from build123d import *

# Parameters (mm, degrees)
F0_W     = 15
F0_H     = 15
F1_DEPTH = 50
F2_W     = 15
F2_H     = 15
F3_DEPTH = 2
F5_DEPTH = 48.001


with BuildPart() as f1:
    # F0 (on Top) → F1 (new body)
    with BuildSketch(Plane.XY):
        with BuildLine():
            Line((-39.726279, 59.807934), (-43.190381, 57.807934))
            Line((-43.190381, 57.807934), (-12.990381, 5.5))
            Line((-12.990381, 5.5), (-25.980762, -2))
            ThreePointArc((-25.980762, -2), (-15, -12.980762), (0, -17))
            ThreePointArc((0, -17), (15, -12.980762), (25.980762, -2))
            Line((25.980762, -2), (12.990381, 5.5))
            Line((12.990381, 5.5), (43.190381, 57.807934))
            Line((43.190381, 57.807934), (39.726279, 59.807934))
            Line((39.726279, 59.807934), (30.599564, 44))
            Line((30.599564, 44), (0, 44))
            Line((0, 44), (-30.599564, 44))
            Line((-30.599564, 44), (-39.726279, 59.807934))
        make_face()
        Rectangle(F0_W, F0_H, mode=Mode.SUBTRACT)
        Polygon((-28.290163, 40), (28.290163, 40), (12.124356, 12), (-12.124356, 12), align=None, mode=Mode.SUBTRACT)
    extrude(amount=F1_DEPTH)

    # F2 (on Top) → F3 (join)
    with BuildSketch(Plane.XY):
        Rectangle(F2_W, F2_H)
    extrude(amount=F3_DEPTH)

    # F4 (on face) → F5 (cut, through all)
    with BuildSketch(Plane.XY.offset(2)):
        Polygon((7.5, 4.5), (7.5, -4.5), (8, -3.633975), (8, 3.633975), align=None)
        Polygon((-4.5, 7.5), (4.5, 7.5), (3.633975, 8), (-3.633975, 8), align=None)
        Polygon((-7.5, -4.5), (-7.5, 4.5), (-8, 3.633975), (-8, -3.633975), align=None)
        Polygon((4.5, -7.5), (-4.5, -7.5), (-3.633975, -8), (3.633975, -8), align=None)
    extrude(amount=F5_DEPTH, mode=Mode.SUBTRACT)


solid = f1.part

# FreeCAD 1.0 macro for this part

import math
import FreeCAD as App
import Part
import Sketcher

V = App.Vector
Q = App.Units.Quantity

doc = App.newDocument("Part")
params = doc.addObject("Spreadsheet::Sheet", "Params")
for row, (alias, value) in enumerate([
    ("sketch1_radius", "30 mm"),
    ("sketch1_width", "15 mm"),
    ("sketch1_length", "4 mm"),
    ("sketch1_length2", "15 mm"),
    ("sketch1_length3", "60.4 mm"),
    ("pad1_length", "50 mm"),
    ("sketch2_width", "15 mm"),
    ("pad2_length", "2 mm"),
    ("sketch3_width", "9 mm"),
    ("sketch3_length", "1 mm"),
], start=1):
    params.set(f"A{row}", alias)
    params.set(f"B{row}", "=" + value)
    params.setAlias(f"B{row}", alias)

body = doc.addObject("PartDesign::Body", "Body")

# Sketch on XY plane
sketch1 = doc.addObject("Sketcher::SketchObject", "Sketch")
body.addObject(sketch1)
sketch1.AttachmentSupport = (doc.XY_Plane, [""])
sketch1.MapMode = "FlatFace"
sketch1.addGeometry(Part.LineSegment(V(-39.726279, 59.807934, 0), V(-43.190381, 57.807934, 0)), False)
sketch1.addGeometry(Part.LineSegment(V(-43.190381, 57.807934, 0), V(-12.990381, 5.5, 0)), False)
sketch1.addGeometry(Part.LineSegment(V(-12.990381, 5.5, 0), V(-25.980762, -2, 0)), False)
sketch1.addGeometry(Part.ArcOfCircle(Part.Circle(V(0, 13, 0), V(0, 0, 1), 30), math.radians(-150), math.radians(-90.000001)), False)
sketch1.addGeometry(Part.ArcOfCircle(Part.Circle(V(0, 13, 0), V(0, 0, 1), 30), math.radians(-89.999999), math.radians(-30)), False)
sketch1.addGeometry(Part.LineSegment(V(25.980762, -2, 0), V(12.990381, 5.5, 0)), False)
sketch1.addGeometry(Part.LineSegment(V(12.990381, 5.5, 0), V(43.190381, 57.807934, 0)), False)
sketch1.addGeometry(Part.LineSegment(V(43.190381, 57.807934, 0), V(39.726279, 59.807934, 0)), False)
sketch1.addGeometry(Part.LineSegment(V(39.726279, 59.807934, 0), V(30.599564, 44, 0)), False)
sketch1.addGeometry(Part.LineSegment(V(30.599564, 44, 0), V(-30.599564, 44, 0)), False)
sketch1.addGeometry(Part.LineSegment(V(-30.599564, 44, 0), V(-39.726279, 59.807934, 0)), False)
sketch1.addGeometry(Part.LineSegment(V(7.5, -7.5, 0), V(-7.5, -7.5, 0)), False)
sketch1.addGeometry(Part.LineSegment(V(-7.5, -7.5, 0), V(-7.5, 7.5, 0)), False)
sketch1.addGeometry(Part.LineSegment(V(-7.5, 7.5, 0), V(7.5, 7.5, 0)), False)
sketch1.addGeometry(Part.LineSegment(V(7.5, 7.5, 0), V(7.5, -7.5, 0)), False)
sketch1.addGeometry(Part.LineSegment(V(-12.124356, 12, 0), V(-28.290163, 40, 0)), False)
sketch1.addGeometry(Part.LineSegment(V(-28.290163, 40, 0), V(28.290163, 40, 0)), False)
sketch1.addGeometry(Part.LineSegment(V(28.290163, 40, 0), V(12.124356, 12, 0)), False)
sketch1.addGeometry(Part.LineSegment(V(12.124356, 12, 0), V(-12.124356, 12, 0)), False)
sketch1.addConstraint(Sketcher.Constraint("Coincident", 0, 2, 1, 1))
sketch1.addConstraint(Sketcher.Constraint("Coincident", 1, 2, 2, 1))
sketch1.addConstraint(Sketcher.Constraint("Coincident", 2, 2, 3, 1))
sketch1.addConstraint(Sketcher.Constraint("Tangent", 3, 2, 4, 1))
sketch1.addConstraint(Sketcher.Constraint("Coincident", 4, 2, 5, 1))
sketch1.addConstraint(Sketcher.Constraint("Coincident", 5, 2, 6, 1))
sketch1.addConstraint(Sketcher.Constraint("Coincident", 6, 2, 7, 1))
sketch1.addConstraint(Sketcher.Constraint("Coincident", 7, 2, 8, 1))
sketch1.addConstraint(Sketcher.Constraint("Coincident", 8, 2, 9, 1))
sketch1.addConstraint(Sketcher.Constraint("Coincident", 9, 2, 10, 1))
sketch1.addConstraint(Sketcher.Constraint("Coincident", 10, 2, 0, 1))
sketch1.addConstraint(Sketcher.Constraint("Coincident", 11, 2, 12, 1))
sketch1.addConstraint(Sketcher.Constraint("Coincident", 12, 2, 13, 1))
sketch1.addConstraint(Sketcher.Constraint("Coincident", 13, 2, 14, 1))
sketch1.addConstraint(Sketcher.Constraint("Coincident", 14, 2, 11, 1))
sketch1.addConstraint(Sketcher.Constraint("Coincident", 15, 2, 16, 1))
sketch1.addConstraint(Sketcher.Constraint("Coincident", 16, 2, 17, 1))
sketch1.addConstraint(Sketcher.Constraint("Coincident", 17, 2, 18, 1))
sketch1.addConstraint(Sketcher.Constraint("Coincident", 18, 2, 15, 1))
sketch1.addConstraint(Sketcher.Constraint("Horizontal", 9))
sketch1.addConstraint(Sketcher.Constraint("Horizontal", 11))
sketch1.addConstraint(Sketcher.Constraint("Vertical", 12))
sketch1.addConstraint(Sketcher.Constraint("Horizontal", 13))
sketch1.addConstraint(Sketcher.Constraint("Vertical", 14))
sketch1.addConstraint(Sketcher.Constraint("Horizontal", 16))
sketch1.addConstraint(Sketcher.Constraint("Horizontal", 18))
sketch1.addConstraint(Sketcher.Constraint("Equal", 3, 4))
sketch1.addConstraint(Sketcher.Constraint("Symmetric", 11, 2, 13, 2, -1, 1))
sketch1.addConstraint(Sketcher.Constraint("Symmetric", 2, 2, 4, 2, -2))
sketch1.addConstraint(Sketcher.Constraint("Symmetric", 1, 2, 5, 2, -2))
sketch1.addConstraint(Sketcher.Constraint("Symmetric", 0, 2, 6, 2, -2))
sketch1.addConstraint(Sketcher.Constraint("Symmetric", 7, 2, 10, 2, -2))
sketch1.addConstraint(Sketcher.Constraint("PointOnObject", 3, 2, -2))
sketch1.addConstraint(Sketcher.Constraint("Perpendicular", 0, 1))
sketch1.addConstraint(Sketcher.Constraint("Perpendicular", 1, 2))
sketch1.addConstraint(Sketcher.Constraint("Perpendicular", 7, 8))
sketch1.addConstraint(Sketcher.Constraint("Perpendicular", 2, 10))
sketch1.addConstraint(Sketcher.Constraint("Parallel", 10, 15))
sketch1.addConstraint(Sketcher.Constraint("Parallel", 8, 17))
sketch1.addConstraint(Sketcher.Constraint("Equal", 13, 12))
sketch1.addConstraint(Sketcher.Constraint("Radius", 3, Q("30 mm")))
sketch1.addConstraint(Sketcher.Constraint("DistanceX", 11, 2, 11, 1, Q("15 mm")))
sketch1.addConstraint(Sketcher.Constraint("Angle", 0, Q("-150.000003 deg")))
sketch1.addConstraint(Sketcher.Constraint("Distance", 0, Q("4 mm")))
sketch1.addConstraint(Sketcher.Constraint("Distance", 2, Q("15 mm")))
sketch1.addConstraint(Sketcher.Constraint("DistanceY", -1, 1, 3, 3, Q("13 mm")))
sketch1.addConstraint(Sketcher.Constraint("DistanceY", 2, 2, -1, 1, Q("2 mm")))
sketch1.addConstraint(Sketcher.Constraint("DistanceY", -1, 1, 8, 2, Q("44 mm")))
sketch1.addConstraint(Sketcher.Constraint("DistanceY", -1, 1, 15, 2, Q("40 mm")))
sketch1.addConstraint(Sketcher.Constraint("DistanceY", -1, 1, 17, 2, Q("12 mm")))
sketch1.addConstraint(Sketcher.Constraint("Distance", 1, Q("60.4 mm")))
sketch1.addConstraint(Sketcher.Constraint("DistanceX", 9, 2, 15, 2, Q("2.309401 mm")))
sketch1.addConstraint(Sketcher.Constraint("DistanceX", 16, 2, 8, 2, Q("2.309401 mm")))
sketch1.setExpression("Constraints[40]", "Params.sketch1_radius")
sketch1.setExpression("Constraints[41]", "Params.sketch1_width")
sketch1.setExpression("Constraints[43]", "Params.sketch1_length")
sketch1.setExpression("Constraints[44]", "Params.sketch1_length2")
sketch1.setExpression("Constraints[50]", "Params.sketch1_length3")
pad1 = doc.addObject("PartDesign::Pad", "Pad")
body.addObject(pad1)
pad1.Profile = sketch1
pad1.setExpression("Length", "Params.pad1_length")

# Sketch on XY plane
sketch2 = doc.addObject("Sketcher::SketchObject", "Sketch001")
body.addObject(sketch2)
sketch2.AttachmentSupport = (doc.XY_Plane, [""])
sketch2.MapMode = "FlatFace"
sketch2.addGeometry(Part.LineSegment(V(-7.5, 7.5, 0), V(-7.5, -7.5, 0)), False)
sketch2.addGeometry(Part.LineSegment(V(-7.5, -7.5, 0), V(7.5, -7.5, 0)), False)
sketch2.addGeometry(Part.LineSegment(V(7.5, -7.5, 0), V(7.5, 7.5, 0)), False)
sketch2.addGeometry(Part.LineSegment(V(7.5, 7.5, 0), V(-7.5, 7.5, 0)), False)
sketch2.addConstraint(Sketcher.Constraint("Coincident", 0, 2, 1, 1))
sketch2.addConstraint(Sketcher.Constraint("Coincident", 1, 2, 2, 1))
sketch2.addConstraint(Sketcher.Constraint("Coincident", 2, 2, 3, 1))
sketch2.addConstraint(Sketcher.Constraint("Coincident", 3, 2, 0, 1))
sketch2.addConstraint(Sketcher.Constraint("Vertical", 0))
sketch2.addConstraint(Sketcher.Constraint("Horizontal", 1))
sketch2.addConstraint(Sketcher.Constraint("Vertical", 2))
sketch2.addConstraint(Sketcher.Constraint("Horizontal", 3))
sketch2.addConstraint(Sketcher.Constraint("Symmetric", 0, 2, 2, 2, -1, 1))
sketch2.addConstraint(Sketcher.Constraint("Equal", 3, 0))
sketch2.addConstraint(Sketcher.Constraint("DistanceX", 1, 1, 1, 2, Q("15 mm")))
sketch2.setExpression("Constraints[10]", "Params.sketch2_width")
pad2 = doc.addObject("PartDesign::Pad", "Pad001")
body.addObject(pad2)
pad2.Profile = sketch2
pad2.setExpression("Length", "Params.pad2_length")

# Sketch on XY plane
sketch3 = doc.addObject("Sketcher::SketchObject", "Sketch002")
body.addObject(sketch3)
sketch3.AttachmentSupport = (doc.XY_Plane, [""])
sketch3.MapMode = "FlatFace"
sketch3.AttachmentOffset = App.Placement(V(0, 0, 2), App.Rotation())
sketch3.addGeometry(Part.LineSegment(V(7.5, 4.5, 0), V(7.5, -4.5, 0)), False)
sketch3.addGeometry(Part.LineSegment(V(7.5, -4.5, 0), V(8, -3.633975, 0)), False)
sketch3.addGeometry(Part.LineSegment(V(8, -3.633975, 0), V(8, 3.633975, 0)), False)
sketch3.addGeometry(Part.LineSegment(V(8, 3.633975, 0), V(7.5, 4.5, 0)), False)
sketch3.addGeometry(Part.LineSegment(V(-4.5, 7.5, 0), V(4.5, 7.5, 0)), False)
sketch3.addGeometry(Part.LineSegment(V(4.5, 7.5, 0), V(3.633975, 8, 0)), False)
sketch3.addGeometry(Part.LineSegment(V(3.633975, 8, 0), V(-3.633975, 8, 0)), False)
sketch3.addGeometry(Part.LineSegment(V(-3.633975, 8, 0), V(-4.5, 7.5, 0)), False)
sketch3.addGeometry(Part.LineSegment(V(-7.5, -4.5, 0), V(-7.5, 4.5, 0)), False)
sketch3.addGeometry(Part.LineSegment(V(-7.5, 4.5, 0), V(-8, 3.633975, 0)), False)
sketch3.addGeometry(Part.LineSegment(V(-8, 3.633975, 0), V(-8, -3.633975, 0)), False)
sketch3.addGeometry(Part.LineSegment(V(-8, -3.633975, 0), V(-7.5, -4.5, 0)), False)
sketch3.addGeometry(Part.LineSegment(V(4.5, -7.5, 0), V(-4.5, -7.5, 0)), False)
sketch3.addGeometry(Part.LineSegment(V(-4.5, -7.5, 0), V(-3.633975, -8, 0)), False)
sketch3.addGeometry(Part.LineSegment(V(-3.633975, -8, 0), V(3.633975, -8, 0)), False)
sketch3.addGeometry(Part.LineSegment(V(3.633975, -8, 0), V(4.5, -7.5, 0)), False)
sketch3.addConstraint(Sketcher.Constraint("Coincident", 0, 2, 1, 1))
sketch3.addConstraint(Sketcher.Constraint("Coincident", 1, 2, 2, 1))
sketch3.addConstraint(Sketcher.Constraint("Coincident", 2, 2, 3, 1))
sketch3.addConstraint(Sketcher.Constraint("Coincident", 3, 2, 0, 1))
sketch3.addConstraint(Sketcher.Constraint("Coincident", 4, 2, 5, 1))
sketch3.addConstraint(Sketcher.Constraint("Coincident", 5, 2, 6, 1))
sketch3.addConstraint(Sketcher.Constraint("Coincident", 6, 2, 7, 1))
sketch3.addConstraint(Sketcher.Constraint("Coincident", 7, 2, 4, 1))
sketch3.addConstraint(Sketcher.Constraint("Coincident", 8, 2, 9, 1))
sketch3.addConstraint(Sketcher.Constraint("Coincident", 9, 2, 10, 1))
sketch3.addConstraint(Sketcher.Constraint("Coincident", 10, 2, 11, 1))
sketch3.addConstraint(Sketcher.Constraint("Coincident", 11, 2, 8, 1))
sketch3.addConstraint(Sketcher.Constraint("Coincident", 12, 2, 13, 1))
sketch3.addConstraint(Sketcher.Constraint("Coincident", 13, 2, 14, 1))
sketch3.addConstraint(Sketcher.Constraint("Coincident", 14, 2, 15, 1))
sketch3.addConstraint(Sketcher.Constraint("Coincident", 15, 2, 12, 1))
sketch3.addConstraint(Sketcher.Constraint("Vertical", 0))
sketch3.addConstraint(Sketcher.Constraint("Vertical", 2))
sketch3.addConstraint(Sketcher.Constraint("Horizontal", 4))
sketch3.addConstraint(Sketcher.Constraint("Horizontal", 6))
sketch3.addConstraint(Sketcher.Constraint("Vertical", 8))
sketch3.addConstraint(Sketcher.Constraint("Vertical", 10))
sketch3.addConstraint(Sketcher.Constraint("Horizontal", 12))
sketch3.addConstraint(Sketcher.Constraint("Horizontal", 14))
sketch3.addConstraint(Sketcher.Constraint("Symmetric", 0, 2, 8, 2, -1, 1))
sketch3.addConstraint(Sketcher.Constraint("Symmetric", 1, 2, 9, 2, -1, 1))
sketch3.addConstraint(Sketcher.Constraint("Symmetric", 4, 2, 12, 2, -1, 1))
sketch3.addConstraint(Sketcher.Constraint("Symmetric", 5, 2, 13, 2, -1, 1))
sketch3.addConstraint(Sketcher.Constraint("Perpendicular", 1, 5))
sketch3.addConstraint(Sketcher.Constraint("Perpendicular", 3, 7))
sketch3.addConstraint(Sketcher.Constraint("Perpendicular", 7, 11))
sketch3.addConstraint(Sketcher.Constraint("Perpendicular", 11, 15))
sketch3.addConstraint(Sketcher.Constraint("Horizontal", 3, 2, 8, 2))
sketch3.addConstraint(Sketcher.Constraint("Horizontal", 2, 2, 9, 2))
sketch3.addConstraint(Sketcher.Constraint("Horizontal", 1, 2, 10, 2))
sketch3.addConstraint(Sketcher.Constraint("Vertical", 7, 2, 12, 2))
sketch3.addConstraint(Sketcher.Constraint("Vertical", 5, 2, 14, 2))
sketch3.addConstraint(Sketcher.Constraint("Equal", 12, 0))
sketch3.addConstraint(Sketcher.Constraint("Equal", 14, 2))
sketch3.addConstraint(Sketcher.Constraint("DistanceX", 4, 1, 4, 2, Q("9 mm")))
sketch3.addConstraint(Sketcher.Constraint("Angle", 1, Q("59.999988 deg")))
sketch3.addConstraint(Sketcher.Constraint("Distance", 1, Q("1 mm")))
sketch3.addConstraint(Sketcher.Constraint("DistanceX", -1, 1, 1, 2, Q("8 mm")))
sketch3.addConstraint(Sketcher.Constraint("DistanceY", -1, 1, 5, 2, Q("8 mm")))
sketch3.setExpression("Constraints[39]", "Params.sketch3_width")
sketch3.setExpression("Constraints[41]", "Params.sketch3_length")
pocket1 = doc.addObject("PartDesign::Pocket", "Pocket")
body.addObject(pocket1)
pocket1.Profile = sketch3
pocket1.Type = "ThroughAll"
pocket1.Reversed = True

doc.recompute()
